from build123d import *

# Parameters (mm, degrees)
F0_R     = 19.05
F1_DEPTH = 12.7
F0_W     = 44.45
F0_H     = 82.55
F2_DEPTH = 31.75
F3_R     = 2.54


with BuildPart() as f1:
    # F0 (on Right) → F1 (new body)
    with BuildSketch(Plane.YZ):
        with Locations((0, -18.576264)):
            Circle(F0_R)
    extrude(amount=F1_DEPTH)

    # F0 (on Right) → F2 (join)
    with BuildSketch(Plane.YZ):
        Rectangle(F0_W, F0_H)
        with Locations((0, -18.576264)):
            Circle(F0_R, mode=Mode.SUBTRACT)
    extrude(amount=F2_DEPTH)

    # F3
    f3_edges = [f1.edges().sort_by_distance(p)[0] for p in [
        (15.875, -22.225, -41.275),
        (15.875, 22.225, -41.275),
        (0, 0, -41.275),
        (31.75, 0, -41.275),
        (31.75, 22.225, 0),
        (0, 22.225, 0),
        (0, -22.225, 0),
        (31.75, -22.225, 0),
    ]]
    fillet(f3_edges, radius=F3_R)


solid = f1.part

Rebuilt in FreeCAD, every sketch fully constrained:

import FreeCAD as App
import Part
import Sketcher
Q = App.Units.Quantity


def edges_at(feature, points):
    """Names of the edges that pass closest to the given points."""
    edges = feature.Shape.Edges
    near = lambda p: min(range(len(edges)), key=lambda i: edges[i].distToShape(Part.Vertex(*p))[0])
    return sorted({f"Edge{near(p) + 1}" for p in points})

doc = App.newDocument("Part")
body = doc.addObject("PartDesign::Body", "Body")

# Sketch on YZ plane
sketch1 = body.newObject("Sketcher::SketchObject", "Sketch")
sketch1.AttachmentSupport = (doc.getObject("YZ_Plane"), [""])
sketch1.MapMode = "FlatFace"
sketch1.addGeometry(Part.Circle(App.Vector(0, -18.576264, 0), App.Vector(0, 0, 1), 19.05), False)
sketch1.addConstraint(Sketcher.Constraint("PointOnObject", 0, 3, -2))
sketch1.addConstraint(Sketcher.Constraint("Diameter", 0, Q("1.5 in")))
sketch1.addConstraint(Sketcher.Constraint("DistanceY", 0, 3, -1, 1, Q("18.576264 mm")))
pad1 = body.newObject("PartDesign::Pad", "Pad")
pad1.Profile = sketch1
pad1.Length = Q("0.5 in")

# Sketch on YZ plane
sketch2 = body.newObject("Sketcher::SketchObject", "Sketch001")
sketch2.AttachmentSupport = (doc.getObject("YZ_Plane"), [""])
sketch2.MapMode = "FlatFace"
sketch2.addGeometry(Part.LineSegment(App.Vector(-22.225, 41.275, 0), App.Vector(-22.225, -41.275, 0)), False)
sketch2.addGeometry(Part.LineSegment(App.Vector(-22.225, -41.275, 0), App.Vector(22.225, -41.275, 0)), False)
sketch2.addGeometry(Part.LineSegment(App.Vector(22.225, -41.275, 0), App.Vector(22.225, 41.275, 0)), False)
sketch2.addGeometry(Part.LineSegment(App.Vector(22.225, 41.275, 0), App.Vector(-22.225, 41.275, 0)), False)
sketch2.addGeometry(Part.Circle(App.Vector(0, -18.576264, 0), App.Vector(0, 0, 1), 19.05), False)
sketch2.addConstraint(Sketcher.Constraint("Coincident", 0, 2, 1, 1))
sketch2.addConstraint(Sketcher.Constraint("Coincident", 1, 2, 2, 1))
sketch2.addConstraint(Sketcher.Constraint("Coincident", 2, 2, 3, 1))
sketch2.addConstraint(Sketcher.Constraint("Coincident", 3, 2, 0, 1))
sketch2.addConstraint(Sketcher.Constraint("Vertical", 0))
sketch2.addConstraint(Sketcher.Constraint("Horizontal", 1))
sketch2.addConstraint(Sketcher.Constraint("Vertical", 2))
sketch2.addConstraint(Sketcher.Constraint("Horizontal", 3))
sketch2.addConstraint(Sketcher.Constraint("Symmetric", 0, 2, 2, 2, -1, 1))
sketch2.addConstraint(Sketcher.Constraint("PointOnObject", 4, 3, -2))
sketch2.addConstraint(Sketcher.Constraint("Diameter", 4, Q("1.5 in")))
sketch2.addConstraint(Sketcher.Constraint("DistanceX", 1, 1, 1, 2, Q("1.75 in")))
sketch2.addConstraint(Sketcher.Constraint("DistanceY", 0, 2, 0, 1, Q("3.25 in")))
sketch2.addConstraint(Sketcher.Constraint("DistanceY", 4, 3, -1, 1, Q("18.576264 mm")))
pad2 = body.newObject("PartDesign::Pad", "Pad001")
pad2.Profile = sketch2
pad2.Length = Q("1.25 in")
doc.recompute()

fillet = body.newObject("PartDesign::Fillet", "Fillet")
fillet.Base = (pad2, edges_at(pad2, [
    (15.875, -22.225, -41.275),
    (15.875, 22.225, -41.275),
    (0, 0, -41.275),
    (31.75, 0, -41.275),
    (31.75, 22.225, 0),
    (0, 22.225, 0),
    (0, -22.225, 0),
    (31.75, -22.225, 0),
]))
fillet.Radius = Q("0.1 in")

doc.recompute()
